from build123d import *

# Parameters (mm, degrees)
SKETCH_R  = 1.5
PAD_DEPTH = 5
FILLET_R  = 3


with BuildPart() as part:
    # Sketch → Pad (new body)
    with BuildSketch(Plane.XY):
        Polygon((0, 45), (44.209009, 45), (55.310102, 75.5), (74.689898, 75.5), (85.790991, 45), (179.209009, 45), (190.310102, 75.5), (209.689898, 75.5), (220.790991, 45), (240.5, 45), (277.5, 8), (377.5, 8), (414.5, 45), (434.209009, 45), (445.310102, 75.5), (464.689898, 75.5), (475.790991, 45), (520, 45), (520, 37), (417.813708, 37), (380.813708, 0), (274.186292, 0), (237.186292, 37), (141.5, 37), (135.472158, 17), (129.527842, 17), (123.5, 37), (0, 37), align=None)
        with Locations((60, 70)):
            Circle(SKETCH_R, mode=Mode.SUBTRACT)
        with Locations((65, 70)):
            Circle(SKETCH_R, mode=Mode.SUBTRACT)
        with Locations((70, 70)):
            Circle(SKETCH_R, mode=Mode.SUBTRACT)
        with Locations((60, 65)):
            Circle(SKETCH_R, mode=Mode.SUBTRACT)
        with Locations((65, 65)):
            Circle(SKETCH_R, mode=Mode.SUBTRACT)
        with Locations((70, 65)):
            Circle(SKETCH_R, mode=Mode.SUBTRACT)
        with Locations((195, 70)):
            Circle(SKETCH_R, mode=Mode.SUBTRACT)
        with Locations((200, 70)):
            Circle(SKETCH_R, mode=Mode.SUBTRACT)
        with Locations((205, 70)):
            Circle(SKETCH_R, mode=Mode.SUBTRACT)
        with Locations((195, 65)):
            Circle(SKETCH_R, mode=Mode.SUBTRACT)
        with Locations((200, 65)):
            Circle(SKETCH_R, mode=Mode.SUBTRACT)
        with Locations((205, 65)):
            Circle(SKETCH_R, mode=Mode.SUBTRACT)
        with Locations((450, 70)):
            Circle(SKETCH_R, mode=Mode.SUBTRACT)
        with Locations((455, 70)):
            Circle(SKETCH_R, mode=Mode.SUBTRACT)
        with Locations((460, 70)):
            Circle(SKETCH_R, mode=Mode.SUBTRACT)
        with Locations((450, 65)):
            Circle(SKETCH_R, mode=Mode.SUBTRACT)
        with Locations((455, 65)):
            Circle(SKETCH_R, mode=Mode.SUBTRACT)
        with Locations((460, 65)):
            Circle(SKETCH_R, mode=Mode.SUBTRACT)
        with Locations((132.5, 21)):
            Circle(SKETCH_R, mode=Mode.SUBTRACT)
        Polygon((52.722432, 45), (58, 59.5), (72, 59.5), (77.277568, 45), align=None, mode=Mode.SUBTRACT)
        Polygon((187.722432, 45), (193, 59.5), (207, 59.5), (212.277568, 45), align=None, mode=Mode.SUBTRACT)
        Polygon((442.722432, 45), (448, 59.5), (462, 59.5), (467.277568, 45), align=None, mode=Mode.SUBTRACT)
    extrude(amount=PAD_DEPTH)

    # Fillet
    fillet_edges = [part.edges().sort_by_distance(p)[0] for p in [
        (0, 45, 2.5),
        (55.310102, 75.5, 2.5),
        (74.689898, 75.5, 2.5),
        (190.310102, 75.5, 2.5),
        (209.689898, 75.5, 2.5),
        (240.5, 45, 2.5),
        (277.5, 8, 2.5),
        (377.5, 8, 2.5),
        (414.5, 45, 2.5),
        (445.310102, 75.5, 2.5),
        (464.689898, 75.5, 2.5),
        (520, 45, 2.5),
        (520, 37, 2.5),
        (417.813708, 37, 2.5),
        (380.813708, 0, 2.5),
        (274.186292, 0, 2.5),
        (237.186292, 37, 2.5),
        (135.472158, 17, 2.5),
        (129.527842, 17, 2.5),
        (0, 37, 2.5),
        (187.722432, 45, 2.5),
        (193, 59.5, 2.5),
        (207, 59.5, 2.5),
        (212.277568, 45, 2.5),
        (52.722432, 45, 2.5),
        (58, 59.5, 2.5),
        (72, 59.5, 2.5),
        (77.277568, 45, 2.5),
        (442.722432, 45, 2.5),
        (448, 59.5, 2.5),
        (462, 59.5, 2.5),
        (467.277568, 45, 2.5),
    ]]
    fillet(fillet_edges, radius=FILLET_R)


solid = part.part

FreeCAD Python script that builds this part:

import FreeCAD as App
import Part
import Sketcher
from FreeCAD import Vector
Q = App.Units.Quantity


def edges_at(feature, points):
    """Names of the edges that pass closest to the given points."""
    edges = feature.Shape.Edges
    near = lambda p: min(range(len(edges)), key=lambda i: edges[i].distToShape(Part.Vertex(*p))[0])
    return sorted({f"Edge{near(p) + 1}" for p in points})


def add_polygon(sketch, points):
    """Adds a closed chain of lines whose ends are joined by coincident constraints."""
    first, n = sketch.GeometryCount, len(points)
    for a, b in zip(points, points[1:] + points[:1]):
        sketch.addGeometry(Part.LineSegment(App.Vector(*a, 0), App.Vector(*b, 0)), False)
    for i in range(n):
        sketch.addConstraint(Sketcher.Constraint("Coincident", first + i, 2, first + (i + 1) % n, 1))

doc = App.newDocument("Part")
body = doc.addObject("PartDesign::Body", "Body")

# Sketch on XY plane
sketch1 = body.newObject("Sketcher::SketchObject", "Sketch")
sketch1.AttachmentSupport = (doc.getObject("XY_Plane"), [""])
sketch1.MapMode = "FlatFace"
add_polygon(sketch1, [(44.2, 45), (0, 45), (0, 37), (123.5, 37), (129.5, 17), (135.5, 17), (141.5, 37), (237.2, 37), (274.2, 0), (380.8, 0), (417.8, 37), (520, 37), (520, 45), (475.8, 45), (464.7, 75.5), (445.3, 75.5), (434.2, 45), (414.5, 45), (377.5, 8), (277.5, 8), (240.5, 45), (220.8, 45), (209.7, 75.5), (190.3, 75.5), (179.2, 45), (85.8, 45), (74.7, 75.5), (55.3, 75.5)])  # lines 0-27
sketch1.addGeometry(Part.Circle(Vector(132.5, 21, 0), Vector(0, 0, 1), 1.5), False)  # 28
add_polygon(sketch1, [(442.7, 45), (448, 59.5), (462, 59.5), (467.3, 45)])  # lines 29-32
sketch1.addGeometry(Part.Circle(Vector(460, 65, 0), Vector(0, 0, 1), 1.5), False)  # 33
sketch1.addGeometry(Part.Circle(Vector(455, 65, 0), Vector(0, 0, 1), 1.5), False)  # 34
sketch1.addGeometry(Part.Circle(Vector(450, 65, 0), Vector(0, 0, 1), 1.5), False)  # 35
sketch1.addGeometry(Part.Circle(Vector(460, 70, 0), Vector(0, 0, 1), 1.5), False)  # 36
sketch1.addGeometry(Part.Circle(Vector(455, 70, 0), Vector(0, 0, 1), 1.5), False)  # 37
sketch1.addGeometry(Part.Circle(Vector(450, 70, 0), Vector(0, 0, 1), 1.5), False)  # 38
add_polygon(sketch1, [(187.7, 45), (193, 59.5), (207, 59.5), (212.3, 45)])  # lines 39-42
add_polygon(sketch1, [(52.7, 45), (58, 59.5), (72, 59.5), (77.3, 45)])  # lines 43-46
sketch1.addGeometry(Part.Circle(Vector(205, 65, 0), Vector(0, 0, 1), 1.5), False)  # 47
sketch1.addGeometry(Part.Circle(Vector(200, 65, 0), Vector(0, 0, 1), 1.5), False)  # 48
sketch1.addGeometry(Part.Circle(Vector(195, 65, 0), Vector(0, 0, 1), 1.5), False)  # 49
sketch1.addGeometry(Part.Circle(Vector(205, 70, 0), Vector(0, 0, 1), 1.5), False)  # 50
sketch1.addGeometry(Part.Circle(Vector(200, 70, 0), Vector(0, 0, 1), 1.5), False)  # 51
sketch1.addGeometry(Part.Circle(Vector(195, 70, 0), Vector(0, 0, 1), 1.5), False)  # 52
sketch1.addGeometry(Part.Circle(Vector(70, 65, 0), Vector(0, 0, 1), 1.5), False)  # 53
sketch1.addGeometry(Part.Circle(Vector(65, 65, 0), Vector(0, 0, 1), 1.5), False)  # 54
sketch1.addGeometry(Part.Circle(Vector(60, 65, 0), Vector(0, 0, 1), 1.5), False)  # 55
sketch1.addGeometry(Part.Circle(Vector(70, 70, 0), Vector(0, 0, 1), 1.5), False)  # 56
sketch1.addGeometry(Part.Circle(Vector(65, 70, 0), Vector(0, 0, 1), 1.5), False)  # 57
sketch1.addGeometry(Part.Circle(Vector(60, 70, 0), Vector(0, 0, 1), 1.5), False)  # 58
sketch1.addConstraint([
    Sketcher.Constraint("Horizontal", 0),
    Sketcher.Constraint("Vertical", 1),
    Sketcher.Constraint("Horizontal", 2),
    Sketcher.Constraint("Horizontal", 4),
    Sketcher.Constraint("Horizontal", 6),
    Sketcher.Constraint("Horizontal", 8),
    Sketcher.Constraint("Horizontal", 10),
    Sketcher.Constraint("Vertical", 11),
    Sketcher.Constraint("Horizontal", 12),
    Sketcher.Constraint("Horizontal", 14),
    Sketcher.Constraint("Horizontal", 16),
    Sketcher.Constraint("Horizontal", 18),
    Sketcher.Constraint("Horizontal", 20),
    Sketcher.Constraint("Horizontal", 22),
    Sketcher.Constraint("Horizontal", 24),
    Sketcher.Constraint("Horizontal", 26),
    Sketcher.Constraint("Horizontal", 30),
    Sketcher.Constraint("Horizontal", 32),
    Sketcher.Constraint("Horizontal", 40),
    Sketcher.Constraint("Horizontal", 42),
    Sketcher.Constraint("Horizontal", 44),
    Sketcher.Constraint("Horizontal", 46),
    Sketcher.Constraint("Equal", 28, 33),
    Sketcher.Constraint("Equal", 33, 34),
    Sketcher.Constraint("Equal", 34, 35),
    Sketcher.Constraint("Equal", 35, 36),
    Sketcher.Constraint("Equal", 36, 37),
    Sketcher.Constraint("Equal", 37, 38),
    Sketcher.Constraint("Equal", 38, 47),
    Sketcher.Constraint("Equal", 47, 48),
    Sketcher.Constraint("Equal", 48, 49),
    Sketcher.Constraint("Equal", 49, 50),
    Sketcher.Constraint("Equal", 50, 51),
    Sketcher.Constraint("Equal", 51, 52),
    Sketcher.Constraint("Equal", 52, 53),
    Sketcher.Constraint("Equal", 53, 54),
    Sketcher.Constraint("Equal", 54, 55),
    Sketcher.Constraint("Equal", 55, 56),
    Sketcher.Constraint("Equal", 56, 57),
    Sketcher.Constraint("Equal", 57, 58),
    Sketcher.Constraint("PointOnObject", 0, 2, -2),
    Sketcher.Constraint("PointOnObject", 7, 2, -1),
    Sketcher.Constraint("Perpendicular", 7, 9),
    Sketcher.Constraint("Parallel", 9, 17),
    Sketcher.Constraint("Perpendicular", 17, 19),
    Sketcher.Constraint("Parallel", 13, 21),
    Sketcher.Constraint("Parallel", 15, 23),
    Sketcher.Constraint("Parallel", 21, 25),
    Sketcher.Constraint("Parallel", 23, 27),
    Sketcher.Constraint("Parallel", 27, 29),
    Sketcher.Constraint("Parallel", 25, 31),
    Sketcher.Constraint("Parallel", 29, 39),
    Sketcher.Constraint("Parallel", 31, 41),
    Sketcher.Constraint("Parallel", 39, 43),
    Sketcher.Constraint("Parallel", 41, 45),
    Sketcher.Constraint("Horizontal", 33, 3, 34, 3),
    Sketcher.Constraint("Horizontal", 34, 3, 35, 3),
    Sketcher.Constraint("Horizontal", 36, 3, 37, 3),
    Sketcher.Constraint("Horizontal", 37, 3, 38, 3),
    Sketcher.Constraint("Horizontal", 35, 3, 47, 3),
    Sketcher.Constraint("Horizontal", 47, 3, 48, 3),
    Sketcher.Constraint("Horizontal", 48, 3, 49, 3),
    Sketcher.Constraint("Horizontal", 38, 3, 50, 3),
    Sketcher.Constraint("Horizontal", 50, 3, 51, 3),
    Sketcher.Constraint("Horizontal", 51, 3, 52, 3),
    Sketcher.Constraint("Horizontal", 49, 3, 53, 3),
    Sketcher.Constraint("Horizontal", 53, 3, 54, 3),
    Sketcher.Constraint("Horizontal", 54, 3, 55, 3),
    Sketcher.Constraint("Horizontal", 52, 3, 56, 3),
    Sketcher.Constraint("Horizontal", 56, 3, 57, 3),
    Sketcher.Constraint("Horizontal", 57, 3, 58, 3),
    Sketcher.Constraint("Horizontal", 2, 2, 5, 2),
    Sketcher.Constraint("Horizontal", 6, 2, 9, 2),
    Sketcher.Constraint("Horizontal", 0, 2, 11, 2),
    Sketcher.Constraint("Horizontal", 12, 2, 15, 2),
    Sketcher.Constraint("Horizontal", 16, 2, 19, 2),
    Sketcher.Constraint("Horizontal", 14, 2, 21, 2),
    Sketcher.Constraint("Horizontal", 20, 2, 23, 2),
    Sketcher.Constraint("Horizontal", 22, 2, 25, 2),
    Sketcher.Constraint("Horizontal", 27, 2, 31, 2),
    Sketcher.Constraint("Horizontal", 30, 2, 39, 2),
    Sketcher.Constraint("Horizontal", 32, 2, 41, 2),
    Sketcher.Constraint("Horizontal", 40, 2, 43, 2),
    Sketcher.Constraint("Horizontal", 42, 2, 45, 2),
    Sketcher.Constraint("Vertical", 33, 3, 36, 3),
    Sketcher.Constraint("Vertical", 34, 3, 37, 3),
    Sketcher.Constraint("Vertical", 35, 3, 38, 3),
    Sketcher.Constraint("Vertical", 47, 3, 50, 3),
    Sketcher.Constraint("Vertical", 48, 3, 51, 3),
    Sketcher.Constraint("Vertical", 49, 3, 52, 3),
    Sketcher.Constraint("Vertical", 53, 3, 56, 3),
    Sketcher.Constraint("Vertical", 54, 3, 57, 3),
    Sketcher.Constraint("Vertical", 55, 3, 58, 3),
    Sketcher.Constraint("Equal", 0, 12),
    Sketcher.Constraint("Equal", 16, 20),
    Sketcher.Constraint("Equal", 14, 22),
    Sketcher.Constraint("Equal", 22, 26),
    Sketcher.Constraint("Equal", 30, 40),
    Sketcher.Constraint("Equal", 40, 44),
    Sketcher.Constraint("Equal", 3, 5),
    Sketcher.Constraint("Equal", 7, 9),
    Sketcher.Constraint("Equal", 13, 15),
    Sketcher.Constraint("Equal", 9, 17),
    Sketcher.Constraint("Diameter", 28, 3.0),
    Sketcher.Constraint("DistanceX", 18, 2, 18, 1, 100.0),
    Sketcher.Constraint("DistanceX", 30, 1, 30, 2, 14.0),
    Sketcher.Constraint("DistanceY", 1, 2, 1, 1, 8.0),
    Sketcher.Constraint("Angle", 13, Q("110.000001 deg")),
    Sketcher.Constraint("DistanceX", 2, 1, 2, 2, 123.5),
    Sketcher.Constraint("DistanceY", -1, 1, 28, 3, 21.0),
    Sketcher.Constraint("DistanceX", -1, 1, 33, 3, 460.0),
    Sketcher.Constraint("DistanceY", -1, 1, 33, 3, 65.0),
    Sketcher.Constraint("DistanceX", -1, 1, 34, 3, 455.0),
    Sketcher.Constraint("DistanceX", -1, 1, 35, 3, 450.0),
    Sketcher.Constraint("DistanceY", -1, 1, 36, 3, 70.0),
    Sketcher.Constraint("DistanceX", -1, 1, 47, 3, 205.0),
    Sketcher.Constraint("DistanceX", -1, 1, 48, 3, 200.0),
    Sketcher.Constraint("DistanceX", -1, 1, 49, 3, 195.0),
    Sketcher.Constraint("DistanceX", -1, 1, 53, 3, 70.0),
    Sketcher.Constraint("DistanceX", -1, 1, 54, 3, 65.0),
    Sketcher.Constraint("DistanceX", -1, 1, 55, 3, 60.0),
    Sketcher.Constraint("DistanceY", -1, 1, 0, 2, 45.0),
    Sketcher.Constraint("DistanceY", -1, 1, 3, 2, 17.0),
    Sketcher.Constraint("DistanceX", -1, 1, 10, 2, 520.0),
    Sketcher.Constraint("DistanceX", -1, 1, 29, 2, 448.0),
    Sketcher.Constraint("DistanceX", -1, 1, 39, 2, 193.0),
    Sketcher.Constraint("DistanceX", -1, 1, 43, 2, 58.0),
    Sketcher.Constraint("DistanceX", 2, 2, 28, 3, 9.0),
    Sketcher.Constraint("DistanceX", 2, 2, 5, 2, 18.0),
    Sketcher.Constraint("DistanceY", -1, 1, 13, 2, 75.5),
    Sketcher.Constraint("DistanceX", -1, 1, 16, 2, 414.5),
    Sketcher.Constraint("DistanceY", -1, 1, 29, 2, 59.5),
    Sketcher.Constraint("DistanceX", 0, 2, 0, 1, 44.209009),
    Sketcher.Constraint("DistanceX", 10, 1, 10, 2, 102.186292),
    Sketcher.Constraint("DistanceX", 16, 2, 16, 1, 19.709009),
    Sketcher.Constraint("DistanceX", 20, 2, 6, 2, 16.395301),
    Sketcher.Constraint("Distance", 3, 20.88863),
])
pad1 = body.newObject("PartDesign::Pad", "Pad")
pad1.Profile = sketch1
pad1.Length = 5
doc.recompute()

fillet = body.newObject("PartDesign::Fillet", "Fillet")
fillet.Base = (pad1, edges_at(pad1, [
    (0, 45, 2.5),
    (55.31, 75.5, 2.5),
    (74.69, 75.5, 2.5),
    (190.31, 75.5, 2.5),
    (209.69, 75.5, 2.5),
    (240.5, 45, 2.5),
    (277.5, 8, 2.5),
    (377.5, 8, 2.5),
    (414.5, 45, 2.5),
    (445.31, 75.5, 2.5),
    (464.69, 75.5, 2.5),
    (520, 45, 2.5),
    (520, 37, 2.5),
    (417.814, 37, 2.5),
    (380.814, 0, 2.5),
    (274.186, 0, 2.5),
    (237.186, 37, 2.5),
    (135.472, 17, 2.5),
    (129.528, 17, 2.5),
    (0, 37, 2.5),
    (187.722, 45, 2.5),
    (193, 59.5, 2.5),
    (207, 59.5, 2.5),
    (212.278, 45, 2.5),
    (52.722, 45, 2.5),
    (58, 59.5, 2.5),
    (72, 59.5, 2.5),
    (77.278, 45, 2.5),
    (442.722, 45, 2.5),
    (448, 59.5, 2.5),
    (462, 59.5, 2.5),
    (467.278, 45, 2.5),
]))
fillet.Radius = 3

doc.recompute()
